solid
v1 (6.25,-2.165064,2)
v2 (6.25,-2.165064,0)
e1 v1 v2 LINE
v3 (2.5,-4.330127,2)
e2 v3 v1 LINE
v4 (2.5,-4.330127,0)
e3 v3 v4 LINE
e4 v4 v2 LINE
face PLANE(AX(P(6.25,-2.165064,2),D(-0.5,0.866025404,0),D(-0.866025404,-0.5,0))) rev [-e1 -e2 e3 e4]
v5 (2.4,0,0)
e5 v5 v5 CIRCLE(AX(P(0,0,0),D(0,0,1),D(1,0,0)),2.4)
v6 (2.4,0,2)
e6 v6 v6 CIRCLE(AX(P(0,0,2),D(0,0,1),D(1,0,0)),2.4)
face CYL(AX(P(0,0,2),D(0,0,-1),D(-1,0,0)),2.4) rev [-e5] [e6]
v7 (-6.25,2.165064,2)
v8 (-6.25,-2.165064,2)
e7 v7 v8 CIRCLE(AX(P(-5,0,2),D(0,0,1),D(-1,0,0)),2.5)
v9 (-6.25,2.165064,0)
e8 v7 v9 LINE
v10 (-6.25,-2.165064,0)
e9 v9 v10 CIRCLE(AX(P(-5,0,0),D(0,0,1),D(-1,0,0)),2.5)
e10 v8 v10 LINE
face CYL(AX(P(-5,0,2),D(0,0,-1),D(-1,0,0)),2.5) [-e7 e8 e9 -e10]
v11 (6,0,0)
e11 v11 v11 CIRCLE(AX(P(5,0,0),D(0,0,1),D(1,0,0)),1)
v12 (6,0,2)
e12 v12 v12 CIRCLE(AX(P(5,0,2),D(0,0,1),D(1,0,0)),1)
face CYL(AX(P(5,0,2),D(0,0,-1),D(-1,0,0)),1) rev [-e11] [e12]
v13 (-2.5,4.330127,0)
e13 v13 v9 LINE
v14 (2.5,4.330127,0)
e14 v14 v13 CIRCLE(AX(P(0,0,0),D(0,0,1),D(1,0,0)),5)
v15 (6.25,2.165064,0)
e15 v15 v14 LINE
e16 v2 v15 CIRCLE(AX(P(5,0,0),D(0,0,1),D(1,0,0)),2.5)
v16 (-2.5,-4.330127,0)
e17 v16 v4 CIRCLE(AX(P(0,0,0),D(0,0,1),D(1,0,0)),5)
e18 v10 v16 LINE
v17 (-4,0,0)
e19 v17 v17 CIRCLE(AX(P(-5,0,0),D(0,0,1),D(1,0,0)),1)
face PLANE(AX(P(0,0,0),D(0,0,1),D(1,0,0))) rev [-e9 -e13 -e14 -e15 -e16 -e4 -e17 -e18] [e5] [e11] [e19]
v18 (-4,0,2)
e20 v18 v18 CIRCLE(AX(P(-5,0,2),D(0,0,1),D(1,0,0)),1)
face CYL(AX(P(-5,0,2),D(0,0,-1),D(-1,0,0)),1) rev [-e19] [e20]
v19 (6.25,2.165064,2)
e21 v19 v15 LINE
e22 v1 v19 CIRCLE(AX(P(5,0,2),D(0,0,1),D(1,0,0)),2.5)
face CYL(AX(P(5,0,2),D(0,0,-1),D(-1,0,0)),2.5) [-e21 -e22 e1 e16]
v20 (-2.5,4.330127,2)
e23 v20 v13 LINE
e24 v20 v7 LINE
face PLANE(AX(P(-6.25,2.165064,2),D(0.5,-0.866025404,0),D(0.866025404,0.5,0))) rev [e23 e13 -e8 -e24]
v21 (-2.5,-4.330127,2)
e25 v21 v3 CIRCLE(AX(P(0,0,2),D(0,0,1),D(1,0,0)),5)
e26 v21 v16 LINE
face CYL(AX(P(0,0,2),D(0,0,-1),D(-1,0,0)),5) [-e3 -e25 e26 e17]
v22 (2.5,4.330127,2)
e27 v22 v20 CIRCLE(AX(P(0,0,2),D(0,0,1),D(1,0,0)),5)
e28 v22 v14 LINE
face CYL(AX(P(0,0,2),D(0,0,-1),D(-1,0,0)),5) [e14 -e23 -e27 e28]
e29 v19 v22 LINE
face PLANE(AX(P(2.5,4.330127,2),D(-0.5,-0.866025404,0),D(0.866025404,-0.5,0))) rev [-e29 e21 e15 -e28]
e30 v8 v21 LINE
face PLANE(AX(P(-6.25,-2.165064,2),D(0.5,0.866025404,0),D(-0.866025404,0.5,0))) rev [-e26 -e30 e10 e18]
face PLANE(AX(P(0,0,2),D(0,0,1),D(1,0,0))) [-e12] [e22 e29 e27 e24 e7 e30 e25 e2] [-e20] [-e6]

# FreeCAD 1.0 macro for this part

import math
import FreeCAD as App
import Part
import Sketcher
from FreeCAD import Vector
Q = App.Units.Quantity

doc = App.newDocument("Part")
body = doc.addObject("PartDesign::Body", "Body")

# Sketch on XY plane
sketch1 = body.newObject("Sketcher::SketchObject", "Sketch")
sketch1.AttachmentSupport = (doc.getObject("XY_Plane"), [""])
sketch1.MapMode = "FlatFace"
sketch1.addGeometry([
    Part.LineSegment(Vector(-2.5, 4.3, 0), Vector(-6.2, 2.2, 0)),  # 0
    Part.ArcOfCircle(Part.Circle(Vector(-5, 0, 0), Vector(0, 0, 1), 2.5), math.radians(120), math.radians(240)),  # 1
    Part.LineSegment(Vector(-6.2, -2.2, 0), Vector(-2.5, -4.3, 0)),  # 2
    Part.ArcOfCircle(Part.Circle(Vector(0, 0, 0), Vector(0, 0, 1), 5), math.radians(-120), math.radians(-60)),  # 3
    Part.LineSegment(Vector(2.5, -4.3, 0), Vector(6.2, -2.2, 0)),  # 4
    Part.ArcOfCircle(Part.Circle(Vector(5, 0, 0), Vector(0, 0, 1), 2.5), math.radians(-60), math.radians(60)),  # 5
    Part.LineSegment(Vector(6.2, 2.2, 0), Vector(2.5, 4.3, 0)),  # 6
    Part.ArcOfCircle(Part.Circle(Vector(0, 0, 0), Vector(0, 0, 1), 5), math.radians(60), math.radians(120)),  # 7
    Part.Circle(Vector(5, 0, 0), Vector(0, 0, 1), 1),  # 8
    Part.Circle(Vector(0, 0, 0), Vector(0, 0, 1), 2.4),  # 9
    Part.Circle(Vector(-5, 0, 0), Vector(0, 0, 1), 1),  # 10
], False)
sketch1.addConstraint([
    Sketcher.Constraint("Tangent", 0, 2, 1, 1),
    Sketcher.Constraint("Tangent", 1, 2, 2, 1),
    Sketcher.Constraint("Tangent", 2, 2, 3, 1),
    Sketcher.Constraint("Tangent", 3, 2, 4, 1),
    Sketcher.Constraint("Tangent", 4, 2, 5, 1),
    Sketcher.Constraint("Tangent", 5, 2, 6, 1),
    Sketcher.Constraint("Tangent", 6, 2, 7, 1),
    Sketcher.Constraint("Tangent", 7, 2, 0, 1),
    Sketcher.Constraint("Coincident", 3, 3, -1, 1),
    Sketcher.Constraint("Coincident", 7, 3, -1, 1),
    Sketcher.Constraint("Coincident", 9, 3, -1, 1),
    Sketcher.Constraint("Coincident", 8, 3, 5, 3),
    Sketcher.Constraint("Coincident", 10, 3, 1, 3),
    Sketcher.Constraint("Equal", 1, 5),
    Sketcher.Constraint("Equal", 3, 7),
    Sketcher.Constraint("Equal", 8, 10),
    Sketcher.Constraint("Symmetric", 1, 3, 5, 3, -1, 1),
    Sketcher.Constraint("PointOnObject", 1, 3, -1),
    Sketcher.Constraint("Diameter", 8, 2.0),
    Sketcher.Constraint("Radius", 3, 5.0),
    Sketcher.Constraint("Diameter", 9, 4.8),
    Sketcher.Constraint("Radius", 1, 2.5),
    Sketcher.Constraint("Angle", 0, Q("-150 deg")),
])
pad1 = body.newObject("PartDesign::Pad", "Pad")
pad1.Profile = sketch1
pad1.Length = 2

doc.recompute()
